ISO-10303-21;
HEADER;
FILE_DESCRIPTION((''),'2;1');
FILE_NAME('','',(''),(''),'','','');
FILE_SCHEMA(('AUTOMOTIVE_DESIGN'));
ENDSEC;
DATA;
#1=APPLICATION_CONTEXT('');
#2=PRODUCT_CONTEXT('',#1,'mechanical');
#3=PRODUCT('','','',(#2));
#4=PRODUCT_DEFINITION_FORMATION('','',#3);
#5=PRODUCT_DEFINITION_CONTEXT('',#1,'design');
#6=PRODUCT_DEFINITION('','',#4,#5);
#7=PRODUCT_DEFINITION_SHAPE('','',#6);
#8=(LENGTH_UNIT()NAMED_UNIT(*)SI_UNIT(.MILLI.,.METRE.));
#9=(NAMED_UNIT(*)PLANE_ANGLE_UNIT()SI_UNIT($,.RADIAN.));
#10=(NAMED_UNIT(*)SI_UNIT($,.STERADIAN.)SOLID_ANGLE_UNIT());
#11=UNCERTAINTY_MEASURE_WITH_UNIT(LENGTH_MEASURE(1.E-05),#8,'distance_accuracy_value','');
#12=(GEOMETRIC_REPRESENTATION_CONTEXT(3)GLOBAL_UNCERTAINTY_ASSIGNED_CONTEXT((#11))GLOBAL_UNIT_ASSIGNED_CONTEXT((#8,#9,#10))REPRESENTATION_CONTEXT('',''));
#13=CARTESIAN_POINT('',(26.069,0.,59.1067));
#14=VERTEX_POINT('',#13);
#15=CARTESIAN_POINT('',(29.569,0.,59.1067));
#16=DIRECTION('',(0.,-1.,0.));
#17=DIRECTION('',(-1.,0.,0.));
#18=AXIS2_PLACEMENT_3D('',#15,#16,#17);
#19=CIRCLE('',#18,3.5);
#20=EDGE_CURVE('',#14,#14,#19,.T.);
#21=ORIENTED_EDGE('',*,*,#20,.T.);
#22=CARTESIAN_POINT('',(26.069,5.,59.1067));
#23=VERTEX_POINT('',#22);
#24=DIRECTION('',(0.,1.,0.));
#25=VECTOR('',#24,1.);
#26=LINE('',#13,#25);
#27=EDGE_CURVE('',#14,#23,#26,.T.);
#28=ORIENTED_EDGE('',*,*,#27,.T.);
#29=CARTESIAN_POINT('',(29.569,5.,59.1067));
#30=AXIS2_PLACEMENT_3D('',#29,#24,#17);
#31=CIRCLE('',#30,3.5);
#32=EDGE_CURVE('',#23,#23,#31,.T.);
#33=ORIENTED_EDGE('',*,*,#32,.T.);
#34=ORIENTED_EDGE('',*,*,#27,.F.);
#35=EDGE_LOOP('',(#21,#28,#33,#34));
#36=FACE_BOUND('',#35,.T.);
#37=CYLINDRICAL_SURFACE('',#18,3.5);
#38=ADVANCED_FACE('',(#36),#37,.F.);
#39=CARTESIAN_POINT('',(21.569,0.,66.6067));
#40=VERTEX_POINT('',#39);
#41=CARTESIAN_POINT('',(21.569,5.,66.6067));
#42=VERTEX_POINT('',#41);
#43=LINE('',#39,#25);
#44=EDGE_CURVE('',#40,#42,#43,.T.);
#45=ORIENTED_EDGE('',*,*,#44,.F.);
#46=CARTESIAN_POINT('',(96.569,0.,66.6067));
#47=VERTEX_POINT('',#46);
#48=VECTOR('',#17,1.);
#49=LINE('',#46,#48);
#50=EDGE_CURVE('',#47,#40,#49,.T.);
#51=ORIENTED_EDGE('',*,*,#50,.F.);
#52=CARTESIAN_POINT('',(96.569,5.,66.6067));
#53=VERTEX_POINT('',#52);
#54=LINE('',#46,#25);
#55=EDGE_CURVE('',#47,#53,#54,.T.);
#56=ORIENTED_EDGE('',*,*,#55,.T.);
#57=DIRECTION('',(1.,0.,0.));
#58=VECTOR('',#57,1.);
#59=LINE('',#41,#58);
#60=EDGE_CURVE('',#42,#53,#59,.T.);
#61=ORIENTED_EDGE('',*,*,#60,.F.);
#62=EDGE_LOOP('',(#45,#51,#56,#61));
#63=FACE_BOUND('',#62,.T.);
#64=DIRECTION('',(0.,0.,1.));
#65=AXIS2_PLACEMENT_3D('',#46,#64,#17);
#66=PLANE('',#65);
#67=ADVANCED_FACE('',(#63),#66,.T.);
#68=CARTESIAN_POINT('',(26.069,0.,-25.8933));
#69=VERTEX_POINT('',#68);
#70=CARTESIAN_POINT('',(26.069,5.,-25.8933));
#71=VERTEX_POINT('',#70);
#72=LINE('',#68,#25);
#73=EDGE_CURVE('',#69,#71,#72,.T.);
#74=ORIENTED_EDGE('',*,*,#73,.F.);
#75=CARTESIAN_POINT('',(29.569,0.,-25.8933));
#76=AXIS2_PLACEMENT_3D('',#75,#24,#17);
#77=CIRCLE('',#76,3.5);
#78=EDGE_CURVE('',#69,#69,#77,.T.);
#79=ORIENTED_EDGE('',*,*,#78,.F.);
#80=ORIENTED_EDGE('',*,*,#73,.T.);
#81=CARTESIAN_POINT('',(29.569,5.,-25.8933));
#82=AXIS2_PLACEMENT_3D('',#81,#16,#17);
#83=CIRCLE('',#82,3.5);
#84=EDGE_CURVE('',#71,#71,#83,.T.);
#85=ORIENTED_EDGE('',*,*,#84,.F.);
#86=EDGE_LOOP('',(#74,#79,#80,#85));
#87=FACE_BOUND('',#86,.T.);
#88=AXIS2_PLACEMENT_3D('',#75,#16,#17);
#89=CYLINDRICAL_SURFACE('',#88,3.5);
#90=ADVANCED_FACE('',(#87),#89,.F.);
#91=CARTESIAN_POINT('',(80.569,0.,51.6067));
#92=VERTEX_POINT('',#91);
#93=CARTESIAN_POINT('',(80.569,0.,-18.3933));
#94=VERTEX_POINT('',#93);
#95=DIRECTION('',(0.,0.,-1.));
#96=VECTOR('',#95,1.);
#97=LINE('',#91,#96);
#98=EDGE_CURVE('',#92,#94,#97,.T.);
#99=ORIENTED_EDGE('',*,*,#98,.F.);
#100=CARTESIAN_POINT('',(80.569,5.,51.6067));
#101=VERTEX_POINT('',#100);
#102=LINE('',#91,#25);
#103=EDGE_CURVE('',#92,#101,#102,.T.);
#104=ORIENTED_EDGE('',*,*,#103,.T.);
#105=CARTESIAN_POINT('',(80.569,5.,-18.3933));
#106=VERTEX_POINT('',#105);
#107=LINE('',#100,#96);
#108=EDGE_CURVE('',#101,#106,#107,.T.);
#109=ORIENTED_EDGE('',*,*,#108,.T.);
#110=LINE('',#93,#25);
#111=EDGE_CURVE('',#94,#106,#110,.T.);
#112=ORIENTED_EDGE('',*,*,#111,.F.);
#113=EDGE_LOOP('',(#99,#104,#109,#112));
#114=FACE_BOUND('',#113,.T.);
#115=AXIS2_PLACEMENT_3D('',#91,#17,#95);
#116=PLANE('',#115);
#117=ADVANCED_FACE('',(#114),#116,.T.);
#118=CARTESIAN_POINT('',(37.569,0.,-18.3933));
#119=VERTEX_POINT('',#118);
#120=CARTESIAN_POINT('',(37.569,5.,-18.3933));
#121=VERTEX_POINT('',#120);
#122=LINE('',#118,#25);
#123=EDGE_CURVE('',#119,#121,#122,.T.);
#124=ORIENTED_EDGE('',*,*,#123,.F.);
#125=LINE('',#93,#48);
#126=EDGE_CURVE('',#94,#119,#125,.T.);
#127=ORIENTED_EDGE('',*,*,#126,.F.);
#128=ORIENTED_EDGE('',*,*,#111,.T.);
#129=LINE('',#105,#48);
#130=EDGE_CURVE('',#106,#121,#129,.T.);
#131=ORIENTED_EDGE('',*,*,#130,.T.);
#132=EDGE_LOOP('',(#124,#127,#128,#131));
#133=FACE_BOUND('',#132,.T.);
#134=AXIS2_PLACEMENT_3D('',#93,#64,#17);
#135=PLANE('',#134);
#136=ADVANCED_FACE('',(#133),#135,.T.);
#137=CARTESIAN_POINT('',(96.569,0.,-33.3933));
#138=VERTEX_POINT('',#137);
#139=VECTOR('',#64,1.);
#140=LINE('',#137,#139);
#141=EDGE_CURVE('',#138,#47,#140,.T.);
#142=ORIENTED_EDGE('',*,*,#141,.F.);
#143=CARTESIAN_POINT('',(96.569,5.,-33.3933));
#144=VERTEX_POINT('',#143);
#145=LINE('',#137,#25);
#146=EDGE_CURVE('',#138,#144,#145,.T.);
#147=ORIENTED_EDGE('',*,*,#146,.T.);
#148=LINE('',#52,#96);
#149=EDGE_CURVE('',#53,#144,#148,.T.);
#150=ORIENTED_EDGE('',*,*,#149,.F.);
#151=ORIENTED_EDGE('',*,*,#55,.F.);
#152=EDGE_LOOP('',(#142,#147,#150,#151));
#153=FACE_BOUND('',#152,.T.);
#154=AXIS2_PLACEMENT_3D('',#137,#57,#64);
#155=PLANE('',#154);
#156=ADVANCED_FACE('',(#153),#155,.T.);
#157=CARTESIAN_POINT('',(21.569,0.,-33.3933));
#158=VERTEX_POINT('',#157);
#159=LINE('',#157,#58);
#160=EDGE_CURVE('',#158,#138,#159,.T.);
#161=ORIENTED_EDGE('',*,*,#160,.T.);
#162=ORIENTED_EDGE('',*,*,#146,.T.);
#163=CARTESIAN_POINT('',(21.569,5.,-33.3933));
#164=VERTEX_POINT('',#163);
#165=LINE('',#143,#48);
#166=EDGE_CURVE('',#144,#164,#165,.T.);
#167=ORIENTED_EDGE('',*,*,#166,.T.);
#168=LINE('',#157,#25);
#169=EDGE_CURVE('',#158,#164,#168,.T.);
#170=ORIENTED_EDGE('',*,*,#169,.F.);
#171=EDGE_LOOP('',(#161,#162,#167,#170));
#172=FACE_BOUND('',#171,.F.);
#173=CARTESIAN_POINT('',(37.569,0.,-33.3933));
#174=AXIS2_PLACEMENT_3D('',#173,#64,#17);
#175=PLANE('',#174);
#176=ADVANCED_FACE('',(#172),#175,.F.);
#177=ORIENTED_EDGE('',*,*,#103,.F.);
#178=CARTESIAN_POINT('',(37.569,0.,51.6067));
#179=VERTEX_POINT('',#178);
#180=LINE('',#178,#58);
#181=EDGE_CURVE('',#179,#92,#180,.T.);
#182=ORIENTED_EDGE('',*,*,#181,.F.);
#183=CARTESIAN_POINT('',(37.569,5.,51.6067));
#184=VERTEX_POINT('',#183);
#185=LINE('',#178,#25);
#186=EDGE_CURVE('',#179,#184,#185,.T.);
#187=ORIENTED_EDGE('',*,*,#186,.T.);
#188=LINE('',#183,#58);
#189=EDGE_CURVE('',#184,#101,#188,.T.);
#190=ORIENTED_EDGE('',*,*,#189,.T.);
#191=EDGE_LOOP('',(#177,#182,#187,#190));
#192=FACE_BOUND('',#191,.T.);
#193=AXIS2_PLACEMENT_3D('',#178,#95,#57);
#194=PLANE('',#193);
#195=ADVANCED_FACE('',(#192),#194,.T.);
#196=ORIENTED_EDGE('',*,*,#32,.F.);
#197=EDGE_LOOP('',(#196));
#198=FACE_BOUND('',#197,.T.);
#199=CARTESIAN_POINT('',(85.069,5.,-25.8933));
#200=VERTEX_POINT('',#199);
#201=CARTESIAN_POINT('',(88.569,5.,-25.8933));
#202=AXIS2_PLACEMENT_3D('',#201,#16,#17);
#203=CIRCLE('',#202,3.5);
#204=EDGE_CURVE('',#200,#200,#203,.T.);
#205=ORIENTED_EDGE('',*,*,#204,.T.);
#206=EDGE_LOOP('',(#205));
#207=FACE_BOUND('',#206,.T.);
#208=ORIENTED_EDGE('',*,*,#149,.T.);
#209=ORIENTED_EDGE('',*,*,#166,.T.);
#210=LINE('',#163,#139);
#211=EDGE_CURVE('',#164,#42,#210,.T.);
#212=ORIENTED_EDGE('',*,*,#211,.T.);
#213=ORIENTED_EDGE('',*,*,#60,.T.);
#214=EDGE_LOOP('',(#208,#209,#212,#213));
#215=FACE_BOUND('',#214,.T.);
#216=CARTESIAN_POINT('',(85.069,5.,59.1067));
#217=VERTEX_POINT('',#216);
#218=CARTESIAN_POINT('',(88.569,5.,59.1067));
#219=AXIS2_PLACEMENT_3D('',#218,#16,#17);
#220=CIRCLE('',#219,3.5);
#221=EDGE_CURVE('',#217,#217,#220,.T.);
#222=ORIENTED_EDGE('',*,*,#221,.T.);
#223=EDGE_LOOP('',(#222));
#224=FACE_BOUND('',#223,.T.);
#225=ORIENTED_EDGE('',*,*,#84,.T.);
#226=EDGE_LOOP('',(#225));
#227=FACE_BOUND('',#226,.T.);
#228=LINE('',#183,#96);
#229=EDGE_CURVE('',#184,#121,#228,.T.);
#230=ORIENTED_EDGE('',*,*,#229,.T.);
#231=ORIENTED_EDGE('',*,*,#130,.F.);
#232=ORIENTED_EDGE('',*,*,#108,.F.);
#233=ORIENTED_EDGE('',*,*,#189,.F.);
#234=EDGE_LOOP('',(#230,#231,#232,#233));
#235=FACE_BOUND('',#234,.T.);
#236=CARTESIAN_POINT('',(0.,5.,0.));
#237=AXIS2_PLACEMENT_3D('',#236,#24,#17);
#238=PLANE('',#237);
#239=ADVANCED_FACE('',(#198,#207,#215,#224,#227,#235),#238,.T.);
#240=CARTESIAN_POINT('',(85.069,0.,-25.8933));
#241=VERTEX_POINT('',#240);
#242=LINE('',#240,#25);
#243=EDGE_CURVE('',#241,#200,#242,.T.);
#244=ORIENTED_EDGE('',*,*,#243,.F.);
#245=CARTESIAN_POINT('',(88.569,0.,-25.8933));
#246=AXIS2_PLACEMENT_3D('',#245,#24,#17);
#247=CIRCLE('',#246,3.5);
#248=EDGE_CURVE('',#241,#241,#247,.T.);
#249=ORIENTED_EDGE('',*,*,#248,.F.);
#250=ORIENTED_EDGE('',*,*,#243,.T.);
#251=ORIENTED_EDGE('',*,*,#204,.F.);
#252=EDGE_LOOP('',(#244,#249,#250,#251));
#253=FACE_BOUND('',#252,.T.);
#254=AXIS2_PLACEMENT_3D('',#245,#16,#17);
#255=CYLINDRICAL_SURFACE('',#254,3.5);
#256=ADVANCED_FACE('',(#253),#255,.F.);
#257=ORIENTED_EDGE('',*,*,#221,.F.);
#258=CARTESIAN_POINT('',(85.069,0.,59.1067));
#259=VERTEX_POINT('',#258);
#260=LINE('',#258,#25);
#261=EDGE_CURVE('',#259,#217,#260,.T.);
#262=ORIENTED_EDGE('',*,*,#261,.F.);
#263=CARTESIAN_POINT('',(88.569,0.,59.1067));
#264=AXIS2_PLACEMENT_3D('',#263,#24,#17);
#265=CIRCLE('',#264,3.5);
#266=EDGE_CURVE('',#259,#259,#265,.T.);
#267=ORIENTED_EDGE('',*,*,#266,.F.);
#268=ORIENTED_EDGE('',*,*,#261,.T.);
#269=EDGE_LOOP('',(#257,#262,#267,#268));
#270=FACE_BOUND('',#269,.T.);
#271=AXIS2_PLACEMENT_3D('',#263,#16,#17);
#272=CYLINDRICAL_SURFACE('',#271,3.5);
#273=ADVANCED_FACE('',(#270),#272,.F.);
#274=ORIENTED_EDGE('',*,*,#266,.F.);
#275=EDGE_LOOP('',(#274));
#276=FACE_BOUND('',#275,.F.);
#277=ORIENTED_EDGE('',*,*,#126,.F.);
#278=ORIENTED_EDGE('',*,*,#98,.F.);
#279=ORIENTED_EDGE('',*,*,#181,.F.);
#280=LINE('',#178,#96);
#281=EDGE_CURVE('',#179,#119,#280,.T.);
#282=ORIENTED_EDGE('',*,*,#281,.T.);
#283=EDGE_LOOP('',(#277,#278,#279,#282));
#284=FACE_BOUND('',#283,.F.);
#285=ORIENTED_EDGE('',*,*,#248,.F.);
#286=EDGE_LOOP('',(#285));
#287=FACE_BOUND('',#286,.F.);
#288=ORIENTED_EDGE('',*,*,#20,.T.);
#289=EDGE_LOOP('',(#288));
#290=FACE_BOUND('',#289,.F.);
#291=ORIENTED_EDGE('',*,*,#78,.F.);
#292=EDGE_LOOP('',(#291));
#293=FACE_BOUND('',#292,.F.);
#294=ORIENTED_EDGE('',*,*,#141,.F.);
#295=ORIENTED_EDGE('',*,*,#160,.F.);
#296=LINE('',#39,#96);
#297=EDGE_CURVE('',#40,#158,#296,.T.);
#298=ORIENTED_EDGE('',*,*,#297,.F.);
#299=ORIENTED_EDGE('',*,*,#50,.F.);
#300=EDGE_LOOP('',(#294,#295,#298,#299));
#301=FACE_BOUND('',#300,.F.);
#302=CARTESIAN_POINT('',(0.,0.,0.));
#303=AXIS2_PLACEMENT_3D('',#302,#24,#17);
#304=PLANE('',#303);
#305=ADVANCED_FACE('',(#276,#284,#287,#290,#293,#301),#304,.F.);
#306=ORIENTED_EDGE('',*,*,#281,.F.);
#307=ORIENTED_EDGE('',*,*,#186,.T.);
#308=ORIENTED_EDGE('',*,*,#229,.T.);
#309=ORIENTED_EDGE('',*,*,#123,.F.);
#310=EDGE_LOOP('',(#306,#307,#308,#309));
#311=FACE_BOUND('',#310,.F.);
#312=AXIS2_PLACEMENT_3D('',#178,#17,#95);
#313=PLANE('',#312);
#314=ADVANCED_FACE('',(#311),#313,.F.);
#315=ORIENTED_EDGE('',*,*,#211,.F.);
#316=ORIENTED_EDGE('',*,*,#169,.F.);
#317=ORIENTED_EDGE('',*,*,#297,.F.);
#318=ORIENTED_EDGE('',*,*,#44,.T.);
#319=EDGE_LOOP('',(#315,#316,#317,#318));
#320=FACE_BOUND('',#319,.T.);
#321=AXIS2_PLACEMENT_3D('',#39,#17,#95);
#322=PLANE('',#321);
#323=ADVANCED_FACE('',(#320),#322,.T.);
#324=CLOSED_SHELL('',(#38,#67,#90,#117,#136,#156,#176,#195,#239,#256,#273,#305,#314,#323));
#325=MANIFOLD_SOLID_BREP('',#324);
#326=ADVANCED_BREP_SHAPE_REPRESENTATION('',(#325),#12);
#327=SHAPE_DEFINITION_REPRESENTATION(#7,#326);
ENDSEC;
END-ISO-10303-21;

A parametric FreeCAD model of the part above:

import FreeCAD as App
import Part
import Sketcher
from FreeCAD import Vector
Q = App.Units.Quantity

doc = App.newDocument("Part")
params = doc.addObject("Spreadsheet::Sheet", "Params")
for row, (alias, value) in enumerate([
    ("sketch1_width", "75 mm"),
    ("sketch1_diameter", "7 mm"),
    ("sketch1_width2", "43 mm"),
    ("sketch1_height", "100 mm"),
    ("pad1_length", "5 mm"),
], start=1):
    params.set(f"A{row}", alias)
    params.set(f"B{row}", "=" + value)
    params.setAlias(f"B{row}", alias)

body = doc.addObject("PartDesign::Body", "Body")

# Sketch on XZ plane
sketch1 = body.newObject("Sketcher::SketchObject", "Sketch")
sketch1.AttachmentSupport = (doc.getObject("XZ_Plane"), [""])
sketch1.MapMode = "FlatFace"
sketch1.addGeometry([
    Part.LineSegment(Vector(96.6, 66.6, 0), Vector(96.6, -33.4, 0)),  # 0
    Part.LineSegment(Vector(96.6, -33.4, 0), Vector(21.6, -33.4, 0)),  # 1
    Part.LineSegment(Vector(21.6, -33.4, 0), Vector(21.6, 66.6, 0)),  # 2
    Part.LineSegment(Vector(21.6, 66.6, 0), Vector(96.6, 66.6, 0)),  # 3
    Part.Circle(Vector(29.6, 59.1, 0), Vector(0, 0, 1), 3.5),  # 4
    Part.Circle(Vector(29.6, -25.9, 0), Vector(0, 0, 1), 3.5),  # 5
    Part.Circle(Vector(88.6, -25.9, 0), Vector(0, 0, 1), 3.5),  # 6
    Part.Circle(Vector(88.6, 59.1, 0), Vector(0, 0, 1), 3.5),  # 7
    Part.LineSegment(Vector(37.6, -18.4, 0), Vector(80.6, -18.4, 0)),  # 8
    Part.LineSegment(Vector(80.6, -18.4, 0), Vector(80.6, 51.6, 0)),  # 9
    Part.LineSegment(Vector(80.6, 51.6, 0), Vector(37.6, 51.6, 0)),  # 10
    Part.LineSegment(Vector(37.6, 51.6, 0), Vector(37.6, -18.4, 0)),  # 11
], False)
sketch1.addConstraint([
    Sketcher.Constraint("Coincident", 0, 2, 1, 1),
    Sketcher.Constraint("Coincident", 1, 2, 2, 1),
    Sketcher.Constraint("Coincident", 2, 2, 3, 1),
    Sketcher.Constraint("Coincident", 3, 2, 0, 1),
    Sketcher.Constraint("Coincident", 8, 2, 9, 1),
    Sketcher.Constraint("Coincident", 9, 2, 10, 1),
    Sketcher.Constraint("Coincident", 10, 2, 11, 1),
    Sketcher.Constraint("Coincident", 11, 2, 8, 1),
    Sketcher.Constraint("Vertical", 0),
    Sketcher.Constraint("Horizontal", 1),
    Sketcher.Constraint("Vertical", 2),
    Sketcher.Constraint("Horizontal", 3),
    Sketcher.Constraint("Horizontal", 8),
    Sketcher.Constraint("Vertical", 9),
    Sketcher.Constraint("Horizontal", 10),
    Sketcher.Constraint("Vertical", 11),
    Sketcher.Constraint("Equal", 4, 5),
    Sketcher.Constraint("Equal", 5, 6),
    Sketcher.Constraint("Equal", 6, 7),
    Sketcher.Constraint("Horizontal", 5, 3, 6, 3),
    Sketcher.Constraint("Horizontal", 4, 3, 7, 3),
    Sketcher.Constraint("Vertical", 4, 3, 5, 3),
    Sketcher.Constraint("Vertical", 6, 3, 7, 3),
    Sketcher.Constraint("DistanceX", 1, 2, 1, 1, Q("75 mm")),
    Sketcher.Constraint("Diameter", 4, Q("7 mm")),
    Sketcher.Constraint("DistanceY", 0, 2, 8, 2, Q("15 mm")),
    Sketcher.Constraint("DistanceY", 9, 2, 3, 2, Q("15 mm")),
    Sketcher.Constraint("DistanceX", 8, 1, 8, 2, Q("43 mm")),
    Sketcher.Constraint("DistanceY", 0, 2, 0, 1, Q("100 mm")),
    Sketcher.Constraint("DistanceY", 5, 3, 4, 3, Q("85 mm")),
    Sketcher.Constraint("DistanceX", 5, 3, 6, 3, Q("59 mm")),
    Sketcher.Constraint("DistanceX", 6, 3, 0, 2, Q("8 mm")),
    Sketcher.Constraint("DistanceX", 8, 2, 6, 3, Q("8 mm")),
    Sketcher.Constraint("DistanceY", 0, 2, 6, 3, Q("7.5 mm")),
    Sketcher.Constraint("DistanceX", -1, 1, 4, 3, Q("29.569 mm")),
    Sketcher.Constraint("DistanceY", -1, 1, 4, 3, Q("59.1067 mm")),
])
sketch1.setExpression("Constraints[23]", "Params.sketch1_width")
sketch1.setExpression("Constraints[24]", "Params.sketch1_diameter")
sketch1.setExpression("Constraints[27]", "Params.sketch1_width2")
sketch1.setExpression("Constraints[28]", "Params.sketch1_height")
pad1 = body.newObject("PartDesign::Pad", "Pad")
pad1.Profile = sketch1
pad1.setExpression("Length", "Params.pad1_length")
pad1.Reversed = True

doc.recompute()
